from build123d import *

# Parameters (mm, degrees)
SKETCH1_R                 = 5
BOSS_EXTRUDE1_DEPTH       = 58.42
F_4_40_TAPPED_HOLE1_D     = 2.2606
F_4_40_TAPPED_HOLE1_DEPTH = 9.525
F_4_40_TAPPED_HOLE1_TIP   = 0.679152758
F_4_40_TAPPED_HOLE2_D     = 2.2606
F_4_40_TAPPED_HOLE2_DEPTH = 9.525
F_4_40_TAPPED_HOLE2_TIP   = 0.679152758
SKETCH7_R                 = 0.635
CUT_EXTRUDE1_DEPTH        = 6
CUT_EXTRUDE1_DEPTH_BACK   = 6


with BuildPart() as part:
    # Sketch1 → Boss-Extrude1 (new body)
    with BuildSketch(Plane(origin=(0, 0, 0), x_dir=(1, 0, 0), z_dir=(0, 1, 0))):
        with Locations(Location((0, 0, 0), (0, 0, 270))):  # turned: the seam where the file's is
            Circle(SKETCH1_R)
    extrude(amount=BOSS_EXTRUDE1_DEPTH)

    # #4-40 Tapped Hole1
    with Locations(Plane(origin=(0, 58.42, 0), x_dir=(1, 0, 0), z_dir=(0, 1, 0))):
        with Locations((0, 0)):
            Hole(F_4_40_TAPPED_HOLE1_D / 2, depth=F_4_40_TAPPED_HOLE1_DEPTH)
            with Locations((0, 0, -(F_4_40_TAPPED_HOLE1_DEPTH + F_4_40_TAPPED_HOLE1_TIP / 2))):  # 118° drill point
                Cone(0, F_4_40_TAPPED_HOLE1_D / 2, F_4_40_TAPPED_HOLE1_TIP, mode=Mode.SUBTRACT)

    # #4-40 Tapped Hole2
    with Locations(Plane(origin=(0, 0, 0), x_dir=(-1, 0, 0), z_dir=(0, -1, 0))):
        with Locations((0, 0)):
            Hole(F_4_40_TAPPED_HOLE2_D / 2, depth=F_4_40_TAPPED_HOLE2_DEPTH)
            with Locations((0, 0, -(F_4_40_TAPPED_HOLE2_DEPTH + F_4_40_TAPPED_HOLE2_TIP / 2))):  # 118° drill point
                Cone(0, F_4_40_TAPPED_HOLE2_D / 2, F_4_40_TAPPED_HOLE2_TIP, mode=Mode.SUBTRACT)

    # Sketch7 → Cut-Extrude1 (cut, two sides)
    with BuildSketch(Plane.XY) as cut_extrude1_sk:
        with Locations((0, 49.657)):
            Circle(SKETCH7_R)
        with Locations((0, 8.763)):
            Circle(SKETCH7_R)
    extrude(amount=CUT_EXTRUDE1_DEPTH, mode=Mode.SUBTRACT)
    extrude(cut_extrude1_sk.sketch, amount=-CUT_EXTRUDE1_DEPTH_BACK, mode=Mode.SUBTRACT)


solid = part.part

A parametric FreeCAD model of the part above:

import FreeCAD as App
import Part
import Sketcher
from FreeCAD import Vector
Q = App.Units.Quantity

doc = App.newDocument("Part")
params = doc.addObject("Spreadsheet::Sheet", "Params")
for row, (alias, value) in enumerate([
    ("pad1_length", "2.3 in"),
    ("sketch2_diameter", "0.089 in"),
    ("hole_diameter", "0.089 in"),
    ("hole_depth", "0.375 in"),
    ("sketch3_diameter", "0.089 in"),
    ("hole2_diameter", "0.089 in"),
    ("hole2_depth", "0.375 in"),
    ("sketch4_diameter", "0.05 in"),
], start=1):
    params.set(f"A{row}", alias)
    params.set(f"B{row}", "=" + value)
    params.setAlias(f"B{row}", alias)

body = doc.addObject("PartDesign::Body", "Body")

sketch1 = body.newObject("Sketcher::SketchObject", "Sketch")
sketch1.AttachmentSupport = (doc.getObject("XZ_Plane"), [""])
sketch1.MapMode = "FlatFace"
sketch1.addGeometry(Part.Circle(Vector(0, 0, 0), Vector(0, 0, 1), 5), False)
sketch1.addConstraint(Sketcher.Constraint("Coincident", 0, 3, -1, 1))
sketch1.addConstraint(Sketcher.Constraint("Diameter", 0, Q("10 mm")))
pad1 = body.newObject("PartDesign::Pad", "Pad")
pad1.Profile = sketch1
pad1.setExpression("Length", "Params.pad1_length")
pad1.Reversed = True

sketch2 = body.newObject("Sketcher::SketchObject", "Sketch001")
sketch2.AttachmentSupport = (doc.getObject("XZ_Plane"), [""])
sketch2.MapMode = "FlatFace"
sketch2.AttachmentOffset = App.Placement(Vector(0, 0, -2.3 * 25.4), App.Rotation())
sketch2.addGeometry(Part.Circle(Vector(0, 0, 0), Vector(0, 0, 1), 1.1), False)
sketch2.addConstraint(Sketcher.Constraint("Coincident", 0, 3, -1, 1))
sketch2.addConstraint(Sketcher.Constraint("Diameter", 0, Q("0.089 in")))
sketch2.setExpression("Constraints[1]", "Params.sketch2_diameter")
doc.recompute()
hole = body.newObject("PartDesign::Hole", "Hole")
hole.Profile = sketch2
hole.ThreadType = "None"
hole.setExpression("Diameter", "Params.hole_diameter")
hole.DepthType = "Dimension"
hole.setExpression("Depth", "Params.hole_depth")
hole.DrillPoint = "Angled"
hole.DrillPointAngle = 118
hole.Reversed = True

sketch3 = body.newObject("Sketcher::SketchObject", "Sketch002")
sketch3.AttachmentSupport = (doc.getObject("XZ_Plane"), [""])
sketch3.MapMode = "FlatFace"
sketch3.addGeometry(Part.Circle(Vector(0, 0, 0), Vector(0, 0, 1), 1.1), False)
sketch3.addConstraint(Sketcher.Constraint("Coincident", 0, 3, -1, 1))
sketch3.addConstraint(Sketcher.Constraint("Diameter", 0, Q("0.089 in")))
sketch3.setExpression("Constraints[1]", "Params.sketch3_diameter")
doc.recompute()
hole2 = body.newObject("PartDesign::Hole", "Hole001")
hole2.Profile = sketch3
hole2.ThreadType = "None"
hole2.setExpression("Diameter", "Params.hole2_diameter")
hole2.DepthType = "Dimension"
hole2.setExpression("Depth", "Params.hole2_depth")
hole2.DrillPoint = "Angled"
hole2.DrillPointAngle = 118

sketch4 = body.newObject("Sketcher::SketchObject", "Sketch003")
sketch4.AttachmentSupport = (doc.getObject("XY_Plane"), [""])
sketch4.MapMode = "FlatFace"
sketch4.addGeometry(Part.Circle(Vector(0, 49.7, 0), Vector(0, 0, 1), 0.6), False)
sketch4.addGeometry(Part.Circle(Vector(0, 8.8, 0), Vector(0, 0, 1), 0.6), False)
sketch4.addConstraint(Sketcher.Constraint("Equal", 0, 1))
sketch4.addConstraint(Sketcher.Constraint("PointOnObject", 0, 3, -2))
sketch4.addConstraint(Sketcher.Constraint("PointOnObject", 1, 3, -2))
sketch4.addConstraint(Sketcher.Constraint("Diameter", 0, Q("0.05 in")))
sketch4.addConstraint(Sketcher.Constraint("DistanceY", 1, 3, 0, 3, Q("1.61 in")))
sketch4.addConstraint(Sketcher.Constraint("DistanceY", -1, 1, 0, 3, Q("1.955 in")))
sketch4.setExpression("Constraints[3]", "Params.sketch4_diameter")
pocket1 = body.newObject("PartDesign::Pocket", "Pocket")
pocket1.Profile = sketch4
pocket1.Type = "ThroughAll"
pocket1.Midplane = True

doc.recompute()
